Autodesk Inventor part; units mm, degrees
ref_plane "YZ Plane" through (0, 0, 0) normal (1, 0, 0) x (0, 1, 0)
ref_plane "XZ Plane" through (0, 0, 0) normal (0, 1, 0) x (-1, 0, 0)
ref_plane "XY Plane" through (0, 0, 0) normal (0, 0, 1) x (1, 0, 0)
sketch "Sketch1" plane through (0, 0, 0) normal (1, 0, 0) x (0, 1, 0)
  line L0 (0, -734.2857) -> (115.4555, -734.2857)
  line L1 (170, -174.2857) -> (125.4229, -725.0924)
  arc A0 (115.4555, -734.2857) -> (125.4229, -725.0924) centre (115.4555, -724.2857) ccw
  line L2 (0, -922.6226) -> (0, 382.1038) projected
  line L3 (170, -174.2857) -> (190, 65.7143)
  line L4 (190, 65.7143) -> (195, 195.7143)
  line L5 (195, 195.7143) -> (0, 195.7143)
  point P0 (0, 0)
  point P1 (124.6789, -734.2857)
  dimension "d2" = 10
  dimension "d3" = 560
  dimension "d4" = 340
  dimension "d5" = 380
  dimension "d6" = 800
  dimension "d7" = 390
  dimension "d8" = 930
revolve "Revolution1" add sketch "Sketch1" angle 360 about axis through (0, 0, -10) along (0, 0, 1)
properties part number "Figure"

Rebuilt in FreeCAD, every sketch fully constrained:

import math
import FreeCAD as App
import Part
import Sketcher

V = App.Vector

doc = App.newDocument("Part")
body = doc.addObject("PartDesign::Body", "Body")

sketch1 = body.newObject("Sketcher::SketchObject", "Sketch")
sketch1.AttachmentSupport = (doc.getObject("YZ_Plane"), [""])
sketch1.MapMode = "FlatFace"
sketch1.addGeometry([
    Part.LineSegment(V(0, 196, 0), V(0, -734, 0)),
    Part.LineSegment(V(0, -734, 0), V(115, -734, 0)),
    Part.ArcOfCircle(Part.Circle(V(115, -724, 0), V(0, 0, 1), 10), math.radians(-90), math.radians(-5)),
    Part.LineSegment(V(125, -725, 0), V(170, -174, 0)),
    Part.LineSegment(V(170, -174, 0), V(190, 66, 0)),
    Part.LineSegment(V(190, 66, 0), V(195, 196, 0)),
    Part.LineSegment(V(195, 196, 0), V(0, 196, 0)),
], False)
sketch1.addConstraint([
    Sketcher.Constraint("Coincident", 0, 2, 1, 1),
    Sketcher.Constraint("Tangent", 1, 2, 2, 1),
    Sketcher.Constraint("Tangent", 2, 2, 3, 1),
    Sketcher.Constraint("Coincident", 3, 2, 4, 1),
    Sketcher.Constraint("Coincident", 4, 2, 5, 1),
    Sketcher.Constraint("Coincident", 5, 2, 6, 1),
    Sketcher.Constraint("Coincident", 6, 2, 0, 1),
    Sketcher.Constraint("Vertical", 0),
    Sketcher.Constraint("Horizontal", 1),
    Sketcher.Constraint("Horizontal", 6),
    Sketcher.Constraint("PointOnObject", 0, 2, -2),
    Sketcher.Constraint("Radius", 2, 10.0),
    Sketcher.Constraint("DistanceY", 0, 2, 0, 1, 930.0),
    Sketcher.Constraint("DistanceY", 1, 2, 3, 2, 560.0),
    Sketcher.Constraint("DistanceY", 1, 2, 4, 2, 800.0),
    Sketcher.Constraint("DistanceX", 6, 2, 6, 1, 195.0),
    Sketcher.Constraint("DistanceX", -1, 1, 3, 2, 170.0),
    Sketcher.Constraint("DistanceX", -1, 1, 4, 2, 190.0),
    Sketcher.Constraint("DistanceX", 1, 1, 1, 2, 115.4555),
    Sketcher.Constraint("DistanceY", 2, 3, -1, 1, 724.2857),
])
revolution = body.newObject("PartDesign::Revolution", "Revolution")
revolution.Profile = sketch1
revolution.ReferenceAxis = (sketch1, ["V_Axis"])
revolution.Angle = 360

doc.recompute()
